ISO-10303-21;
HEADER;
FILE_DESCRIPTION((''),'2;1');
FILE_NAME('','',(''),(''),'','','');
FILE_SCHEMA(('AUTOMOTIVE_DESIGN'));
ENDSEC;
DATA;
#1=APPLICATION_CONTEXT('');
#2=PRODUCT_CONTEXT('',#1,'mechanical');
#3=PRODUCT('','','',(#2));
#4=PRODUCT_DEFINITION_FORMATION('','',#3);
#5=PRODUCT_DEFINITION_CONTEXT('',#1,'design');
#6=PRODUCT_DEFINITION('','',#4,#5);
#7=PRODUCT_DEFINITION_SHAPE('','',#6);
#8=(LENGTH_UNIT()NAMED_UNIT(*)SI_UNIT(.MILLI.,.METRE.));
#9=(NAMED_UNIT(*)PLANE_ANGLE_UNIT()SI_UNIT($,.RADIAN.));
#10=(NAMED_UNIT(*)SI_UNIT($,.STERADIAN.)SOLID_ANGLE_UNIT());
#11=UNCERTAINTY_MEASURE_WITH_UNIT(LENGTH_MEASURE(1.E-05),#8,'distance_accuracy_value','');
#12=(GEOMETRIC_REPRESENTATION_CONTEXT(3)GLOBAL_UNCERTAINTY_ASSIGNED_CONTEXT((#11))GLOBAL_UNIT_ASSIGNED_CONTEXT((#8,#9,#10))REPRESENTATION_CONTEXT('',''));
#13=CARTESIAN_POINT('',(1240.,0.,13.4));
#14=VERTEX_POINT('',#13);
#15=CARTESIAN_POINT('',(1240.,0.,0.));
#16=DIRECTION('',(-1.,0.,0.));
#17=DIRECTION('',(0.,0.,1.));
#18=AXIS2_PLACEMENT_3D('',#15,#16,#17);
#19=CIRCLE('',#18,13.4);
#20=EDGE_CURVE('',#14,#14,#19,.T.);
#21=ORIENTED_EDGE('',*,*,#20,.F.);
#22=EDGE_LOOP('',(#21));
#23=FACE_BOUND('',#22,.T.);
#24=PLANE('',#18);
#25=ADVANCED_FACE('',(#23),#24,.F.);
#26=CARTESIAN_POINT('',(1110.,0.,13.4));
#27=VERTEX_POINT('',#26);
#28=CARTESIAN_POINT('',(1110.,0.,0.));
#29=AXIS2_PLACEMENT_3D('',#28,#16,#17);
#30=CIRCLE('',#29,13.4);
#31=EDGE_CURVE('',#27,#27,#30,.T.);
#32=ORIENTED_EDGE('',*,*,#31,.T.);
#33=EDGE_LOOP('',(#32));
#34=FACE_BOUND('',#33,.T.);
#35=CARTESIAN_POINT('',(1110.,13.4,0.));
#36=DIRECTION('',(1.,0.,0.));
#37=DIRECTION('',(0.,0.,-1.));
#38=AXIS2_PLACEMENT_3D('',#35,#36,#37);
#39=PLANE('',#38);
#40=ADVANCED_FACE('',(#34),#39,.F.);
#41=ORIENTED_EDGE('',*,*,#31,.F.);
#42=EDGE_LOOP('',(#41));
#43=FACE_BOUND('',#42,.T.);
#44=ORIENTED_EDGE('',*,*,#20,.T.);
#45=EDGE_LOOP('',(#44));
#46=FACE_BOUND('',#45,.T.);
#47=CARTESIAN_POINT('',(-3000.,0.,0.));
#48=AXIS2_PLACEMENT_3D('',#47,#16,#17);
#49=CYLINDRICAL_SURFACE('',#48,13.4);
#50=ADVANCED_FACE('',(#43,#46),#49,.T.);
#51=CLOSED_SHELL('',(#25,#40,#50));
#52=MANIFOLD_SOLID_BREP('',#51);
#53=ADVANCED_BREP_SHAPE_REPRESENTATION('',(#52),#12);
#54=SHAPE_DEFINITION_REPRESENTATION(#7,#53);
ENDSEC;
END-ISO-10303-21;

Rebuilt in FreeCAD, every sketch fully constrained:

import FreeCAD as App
import Part
import Sketcher
from FreeCAD import Vector
Q = App.Units.Quantity

doc = App.newDocument("Part")
body = doc.addObject("PartDesign::Body", "Body")

sketch1 = doc.addObject("Sketcher::SketchObject", "Sketch")
body.addObject(sketch1)
sketch1.AttachmentSupport = (doc.XY_Plane, [""])
sketch1.MapMode = "FlatFace"
sketch1.addGeometry(Part.LineSegment(Vector(1110, 13.4, 0), Vector(1110, 0, 0)), False)
sketch1.addGeometry(Part.LineSegment(Vector(1110, 0, 0), Vector(1240, 0, 0)), False)
sketch1.addGeometry(Part.LineSegment(Vector(1240, 0, 0), Vector(1240, 13.4, 0)), False)
sketch1.addGeometry(Part.LineSegment(Vector(1240, 13.4, 0), Vector(1110, 13.4, 0)), False)
sketch1.addConstraint(Sketcher.Constraint("Coincident", 0, 2, 1, 1))
sketch1.addConstraint(Sketcher.Constraint("Coincident", 1, 2, 2, 1))
sketch1.addConstraint(Sketcher.Constraint("Coincident", 2, 2, 3, 1))
sketch1.addConstraint(Sketcher.Constraint("Coincident", 3, 2, 0, 1))
sketch1.addConstraint(Sketcher.Constraint("Vertical", 0))
sketch1.addConstraint(Sketcher.Constraint("Horizontal", 1))
sketch1.addConstraint(Sketcher.Constraint("Vertical", 2))
sketch1.addConstraint(Sketcher.Constraint("Horizontal", 3))
sketch1.addConstraint(Sketcher.Constraint("PointOnObject", 0, 2, -1))
sketch1.addConstraint(Sketcher.Constraint("DistanceX", 1, 1, 1, 2, Q("130 mm")))
sketch1.addConstraint(Sketcher.Constraint("DistanceY", 0, 2, 0, 1, Q("13.4 mm")))
sketch1.addConstraint(Sketcher.Constraint("DistanceX", -1, 1, 0, 2, Q("1110 mm")))
revolution = doc.addObject("PartDesign::Revolution", "Revolution")
body.addObject(revolution)
revolution.Profile = sketch1
revolution.ReferenceAxis = (sketch1, ["H_Axis"])
revolution.Angle = 360

doc.recompute()
